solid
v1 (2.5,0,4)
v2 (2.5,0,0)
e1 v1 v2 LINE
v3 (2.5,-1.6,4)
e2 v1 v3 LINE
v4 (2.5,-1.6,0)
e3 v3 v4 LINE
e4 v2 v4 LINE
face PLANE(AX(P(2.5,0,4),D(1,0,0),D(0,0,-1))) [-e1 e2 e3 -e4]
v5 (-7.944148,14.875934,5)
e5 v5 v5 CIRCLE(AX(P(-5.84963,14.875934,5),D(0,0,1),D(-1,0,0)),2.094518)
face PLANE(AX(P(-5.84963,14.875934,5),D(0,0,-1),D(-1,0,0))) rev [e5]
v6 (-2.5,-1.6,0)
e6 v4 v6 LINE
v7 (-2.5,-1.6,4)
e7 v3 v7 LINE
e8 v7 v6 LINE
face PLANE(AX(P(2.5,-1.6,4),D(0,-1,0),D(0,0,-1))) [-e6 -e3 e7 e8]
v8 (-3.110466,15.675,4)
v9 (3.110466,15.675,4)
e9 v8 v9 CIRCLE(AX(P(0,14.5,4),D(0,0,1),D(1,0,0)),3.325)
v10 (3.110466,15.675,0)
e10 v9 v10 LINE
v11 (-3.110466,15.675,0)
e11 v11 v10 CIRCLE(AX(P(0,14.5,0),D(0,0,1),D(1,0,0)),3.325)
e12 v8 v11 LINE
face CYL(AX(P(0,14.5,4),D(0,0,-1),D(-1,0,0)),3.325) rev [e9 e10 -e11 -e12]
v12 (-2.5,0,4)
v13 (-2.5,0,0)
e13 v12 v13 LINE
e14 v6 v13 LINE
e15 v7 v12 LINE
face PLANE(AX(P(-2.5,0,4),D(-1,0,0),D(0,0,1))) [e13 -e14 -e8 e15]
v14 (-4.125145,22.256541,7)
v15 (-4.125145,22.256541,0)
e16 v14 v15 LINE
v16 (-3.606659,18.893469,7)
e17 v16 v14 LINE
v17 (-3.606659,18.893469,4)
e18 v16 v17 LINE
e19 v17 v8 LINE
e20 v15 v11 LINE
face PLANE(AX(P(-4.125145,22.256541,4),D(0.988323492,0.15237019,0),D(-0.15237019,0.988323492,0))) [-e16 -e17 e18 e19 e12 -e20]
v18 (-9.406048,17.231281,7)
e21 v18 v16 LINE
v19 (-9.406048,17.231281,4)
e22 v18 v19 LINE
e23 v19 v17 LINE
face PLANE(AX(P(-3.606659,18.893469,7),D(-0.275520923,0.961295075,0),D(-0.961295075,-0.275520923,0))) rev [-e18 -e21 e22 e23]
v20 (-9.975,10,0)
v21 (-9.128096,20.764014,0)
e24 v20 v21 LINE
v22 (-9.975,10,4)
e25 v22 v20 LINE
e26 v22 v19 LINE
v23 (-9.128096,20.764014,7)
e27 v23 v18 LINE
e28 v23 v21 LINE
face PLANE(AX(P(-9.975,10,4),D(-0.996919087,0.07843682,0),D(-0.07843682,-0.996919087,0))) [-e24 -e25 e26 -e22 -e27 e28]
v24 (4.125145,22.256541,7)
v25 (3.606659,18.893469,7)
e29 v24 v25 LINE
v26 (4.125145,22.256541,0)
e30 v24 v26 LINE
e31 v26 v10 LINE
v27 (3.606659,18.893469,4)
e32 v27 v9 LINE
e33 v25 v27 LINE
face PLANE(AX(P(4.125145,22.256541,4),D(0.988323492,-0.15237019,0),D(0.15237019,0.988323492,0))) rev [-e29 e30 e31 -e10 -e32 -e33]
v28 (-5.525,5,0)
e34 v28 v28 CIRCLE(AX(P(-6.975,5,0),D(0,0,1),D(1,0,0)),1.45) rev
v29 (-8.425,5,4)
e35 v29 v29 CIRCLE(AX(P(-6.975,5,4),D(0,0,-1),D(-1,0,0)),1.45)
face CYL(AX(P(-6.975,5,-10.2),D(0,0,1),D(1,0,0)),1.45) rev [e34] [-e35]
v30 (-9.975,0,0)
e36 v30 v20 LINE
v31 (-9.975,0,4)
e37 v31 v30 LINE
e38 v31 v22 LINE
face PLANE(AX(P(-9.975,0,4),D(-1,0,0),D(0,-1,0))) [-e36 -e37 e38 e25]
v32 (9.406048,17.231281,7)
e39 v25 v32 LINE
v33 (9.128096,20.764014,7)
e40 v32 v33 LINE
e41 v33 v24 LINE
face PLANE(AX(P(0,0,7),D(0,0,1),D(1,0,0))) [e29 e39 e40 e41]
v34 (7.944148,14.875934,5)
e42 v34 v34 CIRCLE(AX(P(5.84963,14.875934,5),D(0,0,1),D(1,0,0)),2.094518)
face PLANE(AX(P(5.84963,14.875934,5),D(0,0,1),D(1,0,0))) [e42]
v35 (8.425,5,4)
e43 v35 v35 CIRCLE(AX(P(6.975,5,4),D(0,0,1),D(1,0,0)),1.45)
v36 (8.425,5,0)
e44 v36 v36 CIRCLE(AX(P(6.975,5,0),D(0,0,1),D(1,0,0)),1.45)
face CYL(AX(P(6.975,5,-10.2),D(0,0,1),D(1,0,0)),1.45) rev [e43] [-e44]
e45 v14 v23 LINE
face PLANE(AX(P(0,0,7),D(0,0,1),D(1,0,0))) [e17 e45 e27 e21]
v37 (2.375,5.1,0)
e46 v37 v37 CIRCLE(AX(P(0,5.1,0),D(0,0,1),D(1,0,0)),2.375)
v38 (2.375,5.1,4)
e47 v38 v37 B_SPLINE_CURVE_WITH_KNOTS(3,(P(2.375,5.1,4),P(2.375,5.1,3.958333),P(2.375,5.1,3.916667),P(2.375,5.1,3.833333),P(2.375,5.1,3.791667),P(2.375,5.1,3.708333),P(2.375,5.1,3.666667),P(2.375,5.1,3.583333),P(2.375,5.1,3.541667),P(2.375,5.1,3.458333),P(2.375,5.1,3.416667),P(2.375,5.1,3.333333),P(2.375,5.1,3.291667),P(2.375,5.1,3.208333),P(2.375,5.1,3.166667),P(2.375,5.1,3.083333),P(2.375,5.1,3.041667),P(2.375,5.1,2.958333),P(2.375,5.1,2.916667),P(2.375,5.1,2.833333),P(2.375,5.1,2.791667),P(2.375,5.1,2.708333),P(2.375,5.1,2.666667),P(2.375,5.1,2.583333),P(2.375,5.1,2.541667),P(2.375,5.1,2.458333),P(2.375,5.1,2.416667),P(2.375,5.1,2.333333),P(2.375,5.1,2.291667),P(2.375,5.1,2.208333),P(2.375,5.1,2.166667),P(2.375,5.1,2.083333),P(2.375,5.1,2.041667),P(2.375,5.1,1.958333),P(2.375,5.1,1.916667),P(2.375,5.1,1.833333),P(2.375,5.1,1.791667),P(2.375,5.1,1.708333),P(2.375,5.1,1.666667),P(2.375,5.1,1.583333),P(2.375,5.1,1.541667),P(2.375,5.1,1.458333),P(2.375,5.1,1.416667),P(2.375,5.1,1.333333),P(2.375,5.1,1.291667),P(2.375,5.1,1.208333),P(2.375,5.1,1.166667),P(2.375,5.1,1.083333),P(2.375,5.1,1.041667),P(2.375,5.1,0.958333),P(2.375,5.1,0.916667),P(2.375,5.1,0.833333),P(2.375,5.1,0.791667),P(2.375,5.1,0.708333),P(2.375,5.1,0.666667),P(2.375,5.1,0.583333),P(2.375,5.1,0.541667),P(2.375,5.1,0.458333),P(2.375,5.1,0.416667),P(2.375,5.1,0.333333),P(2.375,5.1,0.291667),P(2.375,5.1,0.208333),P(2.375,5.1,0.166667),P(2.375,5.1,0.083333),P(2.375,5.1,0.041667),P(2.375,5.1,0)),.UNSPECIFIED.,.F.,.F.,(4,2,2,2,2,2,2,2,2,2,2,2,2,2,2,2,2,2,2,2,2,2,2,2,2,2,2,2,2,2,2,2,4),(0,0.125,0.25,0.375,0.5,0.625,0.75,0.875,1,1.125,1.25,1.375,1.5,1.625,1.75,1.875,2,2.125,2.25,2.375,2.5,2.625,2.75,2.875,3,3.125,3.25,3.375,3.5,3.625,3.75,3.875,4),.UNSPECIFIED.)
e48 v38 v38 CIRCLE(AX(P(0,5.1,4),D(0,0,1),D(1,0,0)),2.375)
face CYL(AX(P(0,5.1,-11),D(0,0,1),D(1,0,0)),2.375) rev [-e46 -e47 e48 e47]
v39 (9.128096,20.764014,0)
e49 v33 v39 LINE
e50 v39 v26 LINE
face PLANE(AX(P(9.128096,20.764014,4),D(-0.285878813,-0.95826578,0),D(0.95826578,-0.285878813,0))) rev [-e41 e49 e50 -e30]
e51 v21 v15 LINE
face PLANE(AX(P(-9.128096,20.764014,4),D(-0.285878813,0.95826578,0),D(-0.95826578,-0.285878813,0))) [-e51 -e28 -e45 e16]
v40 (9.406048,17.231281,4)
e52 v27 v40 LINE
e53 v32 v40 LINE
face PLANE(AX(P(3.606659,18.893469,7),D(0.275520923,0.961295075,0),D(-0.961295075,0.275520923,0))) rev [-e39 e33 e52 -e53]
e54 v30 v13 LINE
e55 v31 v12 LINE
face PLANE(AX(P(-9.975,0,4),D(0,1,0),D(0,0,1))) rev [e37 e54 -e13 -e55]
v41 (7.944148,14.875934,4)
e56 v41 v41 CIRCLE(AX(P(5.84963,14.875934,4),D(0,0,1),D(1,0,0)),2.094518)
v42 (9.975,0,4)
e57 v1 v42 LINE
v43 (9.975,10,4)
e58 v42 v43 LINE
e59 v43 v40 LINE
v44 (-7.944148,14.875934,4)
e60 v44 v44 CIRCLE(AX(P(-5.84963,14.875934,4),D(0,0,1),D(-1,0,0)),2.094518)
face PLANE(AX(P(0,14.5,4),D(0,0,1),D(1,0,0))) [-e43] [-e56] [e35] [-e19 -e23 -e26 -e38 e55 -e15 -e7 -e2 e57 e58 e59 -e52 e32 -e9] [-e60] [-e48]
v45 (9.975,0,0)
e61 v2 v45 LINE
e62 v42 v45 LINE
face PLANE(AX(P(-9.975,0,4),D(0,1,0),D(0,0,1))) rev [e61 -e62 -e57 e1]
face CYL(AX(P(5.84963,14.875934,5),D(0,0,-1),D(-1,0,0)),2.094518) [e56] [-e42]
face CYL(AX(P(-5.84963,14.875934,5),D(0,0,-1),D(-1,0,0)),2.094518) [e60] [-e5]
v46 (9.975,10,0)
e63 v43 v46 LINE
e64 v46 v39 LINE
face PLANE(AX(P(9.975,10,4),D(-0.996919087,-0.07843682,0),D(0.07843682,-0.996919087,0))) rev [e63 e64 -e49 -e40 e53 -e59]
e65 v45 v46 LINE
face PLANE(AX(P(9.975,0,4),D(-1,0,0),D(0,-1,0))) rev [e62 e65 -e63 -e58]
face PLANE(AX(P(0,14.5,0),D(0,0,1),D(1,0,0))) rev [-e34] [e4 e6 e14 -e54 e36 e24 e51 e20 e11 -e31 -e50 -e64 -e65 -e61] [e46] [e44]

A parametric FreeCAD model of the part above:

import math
import FreeCAD as App
import Part
import Sketcher

V = App.Vector
Q = App.Units.Quantity

doc = App.newDocument("Part")
body = doc.addObject("PartDesign::Body", "Body")

# Sketch on XY plane
sketch1 = doc.addObject("Sketcher::SketchObject", "Sketch")
body.addObject(sketch1)
sketch1.AttachmentSupport = (doc.XY_Plane, [""])
sketch1.MapMode = "FlatFace"
sketch1.addGeometry([
    Part.LineSegment(V(-10, 0, 0), V(10, 0, 0)),  # 0
    Part.LineSegment(V(10, 0, 0), V(10, 10, 0)),  # 1
    Part.LineSegment(V(10, 10, 0), V(9.1, 20.8, 0)),  # 2
    Part.LineSegment(V(9.1, 20.8, 0), V(4.1, 22.3, 0)),  # 3
    Part.LineSegment(V(4.1, 22.3, 0), V(3.1, 15.7, 0)),  # 4
    Part.ArcOfCircle(Part.Circle(V(0, 14.5, 0), V(0, 0, 1), 3.3), math.radians(159), math.radians(381)),  # 5
    Part.LineSegment(V(-3.1, 15.7, 0), V(-4.1, 22.3, 0)),  # 6
    Part.LineSegment(V(-4.1, 22.3, 0), V(-9.1, 20.8, 0)),  # 7
    Part.LineSegment(V(-9.1, 20.8, 0), V(-10, 10, 0)),  # 8
    Part.LineSegment(V(-10, 10, 0), V(-10, 0, 0)),  # 9
], False)
sketch1.addConstraint([
    Sketcher.Constraint("Coincident", 0, 2, 1, 1),
    Sketcher.Constraint("Coincident", 1, 2, 2, 1),
    Sketcher.Constraint("Coincident", 2, 2, 3, 1),
    Sketcher.Constraint("Coincident", 3, 2, 4, 1),
    Sketcher.Constraint("Coincident", 4, 2, 5, 2),
    Sketcher.Constraint("Coincident", 5, 1, 6, 1),
    Sketcher.Constraint("Coincident", 6, 2, 7, 1),
    Sketcher.Constraint("Coincident", 7, 2, 8, 1),
    Sketcher.Constraint("Coincident", 8, 2, 9, 1),
    Sketcher.Constraint("Coincident", 9, 2, 0, 1),
    Sketcher.Constraint("Horizontal", 0),
    Sketcher.Constraint("Vertical", 1),
    Sketcher.Constraint("Vertical", 9),
    Sketcher.Constraint("Symmetric", 0, 2, 9, 2, -1, 1),
    Sketcher.Constraint("Symmetric", 4, 2, 5, 1, -2),
    Sketcher.Constraint("Symmetric", 3, 2, 6, 2, -2),
    Sketcher.Constraint("Symmetric", 2, 2, 7, 2, -2),
    Sketcher.Constraint("Horizontal", 1, 2, 8, 2),
    Sketcher.Constraint("DistanceY", 1, 1, 1, 2, Q("10 mm")),
    Sketcher.Constraint("Radius", 5, Q("3.325 mm")),
    Sketcher.Constraint("DistanceX", 0, 1, 0, 2, Q("19.95 mm")),
    Sketcher.Constraint("DistanceY", -1, 1, 5, 3, Q("14.5 mm")),
    Sketcher.Constraint("DistanceY", -1, 1, 4, 2, Q("15.675 mm")),
    Sketcher.Constraint("Distance", 4, Q("6.659298 mm")),
    Sketcher.Constraint("Distance", 2, Q("10.797279 mm")),
    Sketcher.Constraint("Distance", 3, Q("5.220839 mm")),
    Sketcher.Constraint("DistanceY", -1, 1, 3, 2, Q("22.256541 mm")),
])
pad1 = doc.addObject("PartDesign::Pad", "Pad")
body.addObject(pad1)
pad1.Profile = sketch1
pad1.Length = 4

# Sketch on XY plane
sketch2 = doc.addObject("Sketcher::SketchObject", "Sketch001")
body.addObject(sketch2)
sketch2.AttachmentSupport = (doc.XY_Plane, [""])
sketch2.MapMode = "FlatFace"
sketch2.addGeometry([
    Part.LineSegment(V(2.5, 0, 0), V(2.5, -1.6, 0)),
    Part.LineSegment(V(2.5, -1.6, 0), V(-2.5, -1.6, 0)),
    Part.LineSegment(V(-2.5, -1.6, 0), V(-2.5, 0, 0)),
    Part.LineSegment(V(-2.5, 0, 0), V(2.5, 0, 0)),
], False)
sketch2.addConstraint([
    Sketcher.Constraint("Coincident", 0, 2, 1, 1),
    Sketcher.Constraint("Coincident", 1, 2, 2, 1),
    Sketcher.Constraint("Coincident", 2, 2, 3, 1),
    Sketcher.Constraint("Coincident", 3, 2, 0, 1),
    Sketcher.Constraint("Vertical", 0),
    Sketcher.Constraint("Horizontal", 1),
    Sketcher.Constraint("Vertical", 2),
    Sketcher.Constraint("Horizontal", 3),
    Sketcher.Constraint("Symmetric", 2, 2, 3, 2, -1, 1),
    Sketcher.Constraint("DistanceX", 1, 2, 1, 1, Q("5 mm")),
    Sketcher.Constraint("DistanceY", 0, 2, 0, 1, Q("1.6 mm")),
])
pad2 = doc.addObject("PartDesign::Pad", "Pad001")
body.addObject(pad2)
pad2.Profile = sketch2
pad2.Length = 4

# Sketch on XY plane
sketch3 = doc.addObject("Sketcher::SketchObject", "Sketch002")
body.addObject(sketch3)
sketch3.AttachmentSupport = (doc.XY_Plane, [""])
sketch3.MapMode = "FlatFace"
sketch3.AttachmentOffset = App.Placement(V(0, 0, 4), App.Rotation())
sketch3.addGeometry(Part.Circle(V(7, 5, 0), V(0, 0, 1), 1.4), False)
sketch3.addConstraint([
    Sketcher.Constraint("Diameter", 0, Q("2.9 mm")),
    Sketcher.Constraint("DistanceY", -1, 1, 0, 3, Q("5 mm")),
    Sketcher.Constraint("DistanceX", -1, 1, 0, 3, Q("6.975 mm")),
])
pocket1 = doc.addObject("PartDesign::Pocket", "Pocket")
body.addObject(pocket1)
pocket1.Profile = sketch3
pocket1.Length = 14.2
doc.recompute()

mirrored = doc.addObject("PartDesign::Mirrored", "Mirrored")
body.addObject(mirrored)
mirrored.Originals = [pocket1]
mirrored.MirrorPlane = (doc.YZ_Plane, [""])
body.Tip = mirrored

# Sketch on XY plane
sketch4 = doc.addObject("Sketcher::SketchObject", "Sketch003")
body.addObject(sketch4)
sketch4.AttachmentSupport = (doc.XY_Plane, [""])
sketch4.MapMode = "FlatFace"
sketch4.AttachmentOffset = App.Placement(V(0, 0, 4), App.Rotation())
sketch4.addGeometry(Part.Circle(V(0, 5.1, 0), V(0, 0, 1), 2.4), False)
sketch4.addConstraint([
    Sketcher.Constraint("PointOnObject", 0, 3, -2),
    Sketcher.Constraint("Diameter", 0, Q("4.75 mm")),
    Sketcher.Constraint("DistanceY", -1, 1, 0, 3, Q("5.1 mm")),
])
pocket2 = doc.addObject("PartDesign::Pocket", "Pocket001")
body.addObject(pocket2)
pocket2.Profile = sketch4
pocket2.Length = 15

# Sketch on XY plane
sketch5 = doc.addObject("Sketcher::SketchObject", "Sketch004")
body.addObject(sketch5)
sketch5.AttachmentSupport = (doc.XY_Plane, [""])
sketch5.MapMode = "FlatFace"
sketch5.AttachmentOffset = App.Placement(V(0, 0, 4), App.Rotation())
sketch5.addGeometry([
    Part.Circle(V(5.8, 14.9, 0), V(0, 0, 1), 2.1),
    Part.Circle(V(-5.8, 14.9, 0), V(0, 0, 1), 2.1),
], False)
sketch5.addConstraint([
    Sketcher.Constraint("Equal", 0, 1),
    Sketcher.Constraint("Symmetric", 0, 3, 1, 3, -2),
    Sketcher.Constraint("Diameter", 0, Q("4.189035 mm")),
    Sketcher.Constraint("DistanceX", -1, 1, 0, 3, Q("5.84963 mm")),
    Sketcher.Constraint("DistanceY", -1, 1, 0, 3, Q("14.875934 mm")),
])
pad3 = doc.addObject("PartDesign::Pad", "Pad002")
body.addObject(pad3)
pad3.Profile = sketch5
pad3.Length = 1

# Sketch on XY plane
sketch6 = doc.addObject("Sketcher::SketchObject", "Sketch005")
body.addObject(sketch6)
sketch6.AttachmentSupport = (doc.XY_Plane, [""])
sketch6.MapMode = "FlatFace"
sketch6.AttachmentOffset = App.Placement(V(0, 0, 4), App.Rotation())
sketch6.addGeometry([
    Part.LineSegment(V(4.1, 22.3, 0), V(3.6, 18.9, 0)),  # 0
    Part.LineSegment(V(3.6, 18.9, 0), V(9.4, 17.2, 0)),  # 1
    Part.LineSegment(V(9.4, 17.2, 0), V(9.1, 20.8, 0)),  # 2
    Part.LineSegment(V(9.1, 20.8, 0), V(4.1, 22.3, 0)),  # 3
    Part.LineSegment(V(-4.1, 22.3, 0), V(-9.1, 20.8, 0)),  # 4
    Part.LineSegment(V(-9.1, 20.8, 0), V(-9.4, 17.2, 0)),  # 5
    Part.LineSegment(V(-9.4, 17.2, 0), V(-3.6, 18.9, 0)),  # 6
    Part.LineSegment(V(-3.6, 18.9, 0), V(-4.1, 22.3, 0)),  # 7
], False)
sketch6.addConstraint([
    Sketcher.Constraint("Coincident", 0, 2, 1, 1),
    Sketcher.Constraint("Coincident", 1, 2, 2, 1),
    Sketcher.Constraint("Coincident", 2, 2, 3, 1),
    Sketcher.Constraint("Coincident", 3, 2, 0, 1),
    Sketcher.Constraint("Coincident", 4, 2, 5, 1),
    Sketcher.Constraint("Coincident", 5, 2, 6, 1),
    Sketcher.Constraint("Coincident", 6, 2, 7, 1),
    Sketcher.Constraint("Coincident", 7, 2, 4, 1),
    Sketcher.Constraint("Symmetric", 2, 2, 4, 2, -2),
    Sketcher.Constraint("Symmetric", 1, 2, 5, 2, -2),
    Sketcher.Constraint("Symmetric", 0, 2, 6, 2, -2),
    Sketcher.Constraint("Symmetric", 3, 2, 7, 2, -2),
    Sketcher.Constraint("Distance", 2, Q("3.54365 mm")),
    Sketcher.Constraint("Distance", 3, Q("5.220839 mm")),
    Sketcher.Constraint("DistanceX", -1, 1, 0, 2, Q("3.606659 mm")),
    Sketcher.Constraint("DistanceY", -1, 1, 0, 2, Q("18.893469 mm")),
    Sketcher.Constraint("DistanceX", -1, 1, 1, 2, Q("9.406048 mm")),
    Sketcher.Constraint("DistanceY", -1, 1, 1, 2, Q("17.231281 mm")),
    Sketcher.Constraint("DistanceY", -1, 1, 3, 2, Q("22.256541 mm")),
    Sketcher.Constraint("DistanceX", 3, 2, 2, 2, Q("5.002951 mm")),
])
pad4 = doc.addObject("PartDesign::Pad", "Pad003")
body.addObject(pad4)
pad4.Profile = sketch6
pad4.Length = 3

doc.recompute()
